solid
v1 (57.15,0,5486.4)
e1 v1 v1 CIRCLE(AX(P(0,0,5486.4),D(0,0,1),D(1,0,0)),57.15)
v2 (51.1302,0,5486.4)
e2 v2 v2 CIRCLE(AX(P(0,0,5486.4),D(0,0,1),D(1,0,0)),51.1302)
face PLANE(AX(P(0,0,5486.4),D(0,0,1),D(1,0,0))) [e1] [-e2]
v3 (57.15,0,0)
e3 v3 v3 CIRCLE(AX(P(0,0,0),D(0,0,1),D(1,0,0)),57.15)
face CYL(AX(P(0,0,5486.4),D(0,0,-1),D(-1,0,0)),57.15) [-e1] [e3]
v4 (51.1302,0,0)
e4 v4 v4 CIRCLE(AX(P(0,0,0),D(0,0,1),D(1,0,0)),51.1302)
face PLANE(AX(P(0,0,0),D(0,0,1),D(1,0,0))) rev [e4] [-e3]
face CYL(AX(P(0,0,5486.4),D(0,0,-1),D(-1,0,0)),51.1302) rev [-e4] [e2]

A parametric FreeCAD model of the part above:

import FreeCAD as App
import Part
import Sketcher

V = App.Vector
Q = App.Units.Quantity

doc = App.newDocument("Part")
body = doc.addObject("PartDesign::Body", "Body")

# Sketch on XY plane
sketch1 = doc.addObject("Sketcher::SketchObject", "Sketch")
body.addObject(sketch1)
sketch1.AttachmentSupport = (doc.XY_Plane, [""])
sketch1.MapMode = "FlatFace"
sketch1.addGeometry(Part.Circle(V(0, 0, 0), V(0, 0, 1), 57.15), False)
sketch1.addGeometry(Part.Circle(V(0, 0, 0), V(0, 0, 1), 51.1302), False)
sketch1.addConstraint(Sketcher.Constraint("Coincident", 0, 3, -1, 1))
sketch1.addConstraint(Sketcher.Constraint("Coincident", 1, 3, -1, 1))
sketch1.addConstraint(Sketcher.Constraint("Diameter", 0, Q("4.5 in")))
sketch1.addConstraint(Sketcher.Constraint("Diameter", 1, Q("4.026 in")))
pad1 = doc.addObject("PartDesign::Pad", "Pad")
body.addObject(pad1)
pad1.Profile = sketch1
pad1.Length = Q("216 in")

doc.recompute()
